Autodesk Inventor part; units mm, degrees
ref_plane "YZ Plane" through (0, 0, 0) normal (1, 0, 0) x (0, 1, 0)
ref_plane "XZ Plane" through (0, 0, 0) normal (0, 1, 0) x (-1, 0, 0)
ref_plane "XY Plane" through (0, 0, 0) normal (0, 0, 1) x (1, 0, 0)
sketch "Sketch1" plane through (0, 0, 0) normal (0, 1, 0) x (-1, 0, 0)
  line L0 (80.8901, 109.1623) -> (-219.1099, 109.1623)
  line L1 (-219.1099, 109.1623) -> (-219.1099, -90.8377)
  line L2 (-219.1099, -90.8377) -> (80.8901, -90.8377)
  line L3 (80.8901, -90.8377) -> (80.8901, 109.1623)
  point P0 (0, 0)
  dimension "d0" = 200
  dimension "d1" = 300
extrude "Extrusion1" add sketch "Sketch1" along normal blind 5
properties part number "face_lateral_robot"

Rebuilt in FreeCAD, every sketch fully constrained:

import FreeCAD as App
import Part
import Sketcher

doc = App.newDocument("Part")
body = doc.addObject("PartDesign::Body", "Body")

sketch1 = body.newObject("Sketcher::SketchObject", "Sketch")
sketch1.AttachmentSupport = (doc.getObject("XZ_Plane"), [""])
sketch1.MapMode = "FlatFace"
sketch1.addGeometry(Part.LineSegment(App.Vector(-80.8901, -90.8377, 0), App.Vector(-80.8901, 109.1623, 0)), False)
sketch1.addGeometry(Part.LineSegment(App.Vector(-80.8901, 109.1623, 0), App.Vector(219.1099, 109.1623, 0)), False)
sketch1.addGeometry(Part.LineSegment(App.Vector(219.1099, 109.1623, 0), App.Vector(219.1099, -90.8377, 0)), False)
sketch1.addGeometry(Part.LineSegment(App.Vector(219.1099, -90.8377, 0), App.Vector(-80.8901, -90.8377, 0)), False)
sketch1.addConstraint(Sketcher.Constraint("Coincident", 0, 2, 1, 1))
sketch1.addConstraint(Sketcher.Constraint("Coincident", 1, 2, 2, 1))
sketch1.addConstraint(Sketcher.Constraint("Coincident", 2, 2, 3, 1))
sketch1.addConstraint(Sketcher.Constraint("Coincident", 3, 2, 0, 1))
sketch1.addConstraint(Sketcher.Constraint("Vertical", 0))
sketch1.addConstraint(Sketcher.Constraint("Horizontal", 1))
sketch1.addConstraint(Sketcher.Constraint("Vertical", 2))
sketch1.addConstraint(Sketcher.Constraint("Horizontal", 3))
sketch1.addConstraint(Sketcher.Constraint("DistanceX", 1, 1, 1, 2, 300.0))
sketch1.addConstraint(Sketcher.Constraint("DistanceY", 0, 1, 0, 2, 200.0))
sketch1.addConstraint(Sketcher.Constraint("DistanceX", 0, 2, -1, 1, 80.89))
sketch1.addConstraint(Sketcher.Constraint("DistanceY", -1, 1, 0, 2, 109.1623))
pad1 = body.newObject("PartDesign::Pad", "Pad")
pad1.Profile = sketch1
pad1.Length = 5
pad1.Reversed = True

doc.recompute()
